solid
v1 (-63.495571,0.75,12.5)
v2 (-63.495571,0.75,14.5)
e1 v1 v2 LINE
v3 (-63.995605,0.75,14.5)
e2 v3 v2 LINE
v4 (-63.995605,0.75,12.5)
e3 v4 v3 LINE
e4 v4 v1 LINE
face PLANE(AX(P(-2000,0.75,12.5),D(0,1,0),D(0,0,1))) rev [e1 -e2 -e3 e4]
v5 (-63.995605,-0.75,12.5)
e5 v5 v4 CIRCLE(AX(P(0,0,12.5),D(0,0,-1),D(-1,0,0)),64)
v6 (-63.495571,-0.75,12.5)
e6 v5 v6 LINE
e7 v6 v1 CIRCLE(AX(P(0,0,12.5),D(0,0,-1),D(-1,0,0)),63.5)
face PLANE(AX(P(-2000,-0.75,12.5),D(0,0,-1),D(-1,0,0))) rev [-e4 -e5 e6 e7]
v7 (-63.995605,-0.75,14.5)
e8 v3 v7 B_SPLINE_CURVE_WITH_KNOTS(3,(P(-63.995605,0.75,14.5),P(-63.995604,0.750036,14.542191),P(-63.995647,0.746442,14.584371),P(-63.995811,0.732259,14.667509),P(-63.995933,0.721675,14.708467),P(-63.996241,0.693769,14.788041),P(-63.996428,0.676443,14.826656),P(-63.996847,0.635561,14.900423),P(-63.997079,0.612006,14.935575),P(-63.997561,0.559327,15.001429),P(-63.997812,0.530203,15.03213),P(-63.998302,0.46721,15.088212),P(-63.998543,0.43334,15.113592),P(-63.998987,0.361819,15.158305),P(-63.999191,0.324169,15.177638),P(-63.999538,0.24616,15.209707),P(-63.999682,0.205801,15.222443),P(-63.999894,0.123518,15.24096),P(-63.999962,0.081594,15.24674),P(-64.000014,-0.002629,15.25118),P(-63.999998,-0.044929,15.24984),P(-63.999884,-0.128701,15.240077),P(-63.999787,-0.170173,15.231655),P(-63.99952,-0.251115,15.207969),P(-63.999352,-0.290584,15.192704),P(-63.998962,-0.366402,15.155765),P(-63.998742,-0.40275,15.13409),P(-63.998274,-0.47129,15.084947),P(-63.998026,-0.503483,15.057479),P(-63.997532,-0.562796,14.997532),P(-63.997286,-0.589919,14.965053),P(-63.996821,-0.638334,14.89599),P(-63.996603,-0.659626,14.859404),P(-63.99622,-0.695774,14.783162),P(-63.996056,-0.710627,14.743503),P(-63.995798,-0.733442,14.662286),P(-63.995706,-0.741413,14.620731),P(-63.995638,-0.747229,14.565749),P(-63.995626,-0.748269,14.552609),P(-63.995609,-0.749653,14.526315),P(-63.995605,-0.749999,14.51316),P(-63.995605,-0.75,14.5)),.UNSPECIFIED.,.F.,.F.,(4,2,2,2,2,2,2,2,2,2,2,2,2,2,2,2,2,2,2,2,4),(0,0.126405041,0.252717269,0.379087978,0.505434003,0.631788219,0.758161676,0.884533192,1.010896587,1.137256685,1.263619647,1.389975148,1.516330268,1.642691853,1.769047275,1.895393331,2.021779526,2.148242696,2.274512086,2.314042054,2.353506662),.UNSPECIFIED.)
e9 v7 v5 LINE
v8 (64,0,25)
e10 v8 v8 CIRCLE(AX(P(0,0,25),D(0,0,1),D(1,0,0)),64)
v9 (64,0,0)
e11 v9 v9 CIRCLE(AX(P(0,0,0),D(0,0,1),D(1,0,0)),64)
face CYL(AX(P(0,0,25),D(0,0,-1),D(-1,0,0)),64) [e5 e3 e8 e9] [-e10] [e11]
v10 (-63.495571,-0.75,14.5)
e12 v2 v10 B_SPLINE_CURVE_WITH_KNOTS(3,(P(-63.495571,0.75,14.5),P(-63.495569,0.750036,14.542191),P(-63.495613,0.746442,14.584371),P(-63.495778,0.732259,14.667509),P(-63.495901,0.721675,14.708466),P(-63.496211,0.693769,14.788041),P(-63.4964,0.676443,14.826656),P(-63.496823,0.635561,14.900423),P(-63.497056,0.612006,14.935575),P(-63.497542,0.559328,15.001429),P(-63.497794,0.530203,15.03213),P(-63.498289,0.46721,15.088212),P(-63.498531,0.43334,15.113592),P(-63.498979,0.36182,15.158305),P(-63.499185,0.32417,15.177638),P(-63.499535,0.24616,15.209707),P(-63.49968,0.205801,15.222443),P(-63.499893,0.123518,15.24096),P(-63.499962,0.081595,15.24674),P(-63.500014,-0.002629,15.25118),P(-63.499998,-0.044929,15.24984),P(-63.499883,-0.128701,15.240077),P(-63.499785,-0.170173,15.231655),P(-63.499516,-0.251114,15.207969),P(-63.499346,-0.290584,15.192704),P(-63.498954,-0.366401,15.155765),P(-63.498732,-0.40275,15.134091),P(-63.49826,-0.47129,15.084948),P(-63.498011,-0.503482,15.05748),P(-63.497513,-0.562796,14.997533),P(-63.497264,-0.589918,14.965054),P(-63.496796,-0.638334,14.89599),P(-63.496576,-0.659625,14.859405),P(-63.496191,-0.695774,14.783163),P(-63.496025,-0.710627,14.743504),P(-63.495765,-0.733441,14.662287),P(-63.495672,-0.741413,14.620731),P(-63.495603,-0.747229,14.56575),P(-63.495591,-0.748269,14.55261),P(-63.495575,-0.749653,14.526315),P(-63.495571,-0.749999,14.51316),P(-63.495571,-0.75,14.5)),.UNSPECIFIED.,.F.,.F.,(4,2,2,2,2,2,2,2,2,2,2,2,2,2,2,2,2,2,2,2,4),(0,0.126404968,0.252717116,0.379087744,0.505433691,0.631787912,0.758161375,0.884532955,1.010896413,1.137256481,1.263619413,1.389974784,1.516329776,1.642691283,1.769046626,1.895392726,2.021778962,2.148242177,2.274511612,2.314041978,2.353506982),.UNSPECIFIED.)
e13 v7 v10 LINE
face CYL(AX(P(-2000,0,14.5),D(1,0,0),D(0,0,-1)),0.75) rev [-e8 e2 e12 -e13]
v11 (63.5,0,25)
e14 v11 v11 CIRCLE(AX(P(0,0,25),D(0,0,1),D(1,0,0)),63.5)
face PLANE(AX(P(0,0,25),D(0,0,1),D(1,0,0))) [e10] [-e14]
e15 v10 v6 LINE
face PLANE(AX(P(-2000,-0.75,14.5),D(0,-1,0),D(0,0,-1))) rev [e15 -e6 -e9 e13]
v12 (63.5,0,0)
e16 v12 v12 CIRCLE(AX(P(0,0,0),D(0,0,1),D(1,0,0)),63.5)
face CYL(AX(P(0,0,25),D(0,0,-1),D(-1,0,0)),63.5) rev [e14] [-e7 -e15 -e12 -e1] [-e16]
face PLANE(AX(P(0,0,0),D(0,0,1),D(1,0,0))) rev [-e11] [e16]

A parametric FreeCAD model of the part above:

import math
import FreeCAD as App
import Part
import Sketcher
from FreeCAD import Vector
Q = App.Units.Quantity

doc = App.newDocument("Part")
body = doc.addObject("PartDesign::Body", "Body")

# Sketch on XY plane
sketch1 = body.newObject("Sketcher::SketchObject", "Sketch")
sketch1.AttachmentSupport = (doc.getObject("XY_Plane"), [""])
sketch1.MapMode = "FlatFace"
sketch1.addGeometry([
    Part.Circle(Vector(0, 0, 0), Vector(0, 0, 1), 64),
    Part.Circle(Vector(0, 0, 0), Vector(0, 0, 1), 64),
], False)
sketch1.addConstraint([
    Sketcher.Constraint("Coincident", 0, 3, -1, 1),
    Sketcher.Constraint("Coincident", 1, 3, -1, 1),
    Sketcher.Constraint("Diameter", 0, Q("128 mm")),
    Sketcher.Constraint("Diameter", 1, Q("127 mm")),
])
pad1 = body.newObject("PartDesign::Pad", "Pad")
pad1.Profile = sketch1
pad1.Length = 25

# Sketch on YZ plane
sketch2 = body.newObject("Sketcher::SketchObject", "Sketch001")
sketch2.AttachmentSupport = (doc.getObject("YZ_Plane"), [""])
sketch2.MapMode = "FlatFace"
sketch2.addGeometry([
    Part.LineSegment(Vector(-0.8, 14.5, 0), Vector(-0.8, 12.5, 0)),
    Part.LineSegment(Vector(-0.8, 12.5, 0), Vector(0.8, 12.5, 0)),
    Part.LineSegment(Vector(0.8, 12.5, 0), Vector(0.8, 14.5, 0)),
    Part.ArcOfCircle(Part.Circle(Vector(0, 14.5, 0), Vector(0, 0, 1), 0.8), math.radians(0), math.radians(180)),
], False)
sketch2.addConstraint([
    Sketcher.Constraint("Coincident", 0, 2, 1, 1),
    Sketcher.Constraint("Coincident", 1, 2, 2, 1),
    Sketcher.Constraint("Tangent", 2, 2, 3, 1),
    Sketcher.Constraint("Tangent", 3, 2, 0, 1),
    Sketcher.Constraint("Vertical", 0),
    Sketcher.Constraint("Horizontal", 1),
    Sketcher.Constraint("Vertical", 2),
    Sketcher.Constraint("PointOnObject", 3, 3, -2),
    Sketcher.Constraint("DistanceY", 0, 2, 0, 1, Q("2 mm")),
    Sketcher.Constraint("Radius", 3, Q("0.75 mm")),
    Sketcher.Constraint("DistanceY", -1, 1, 3, 3, Q("14.5 mm")),
])
pocket1 = body.newObject("PartDesign::Pocket", "Pocket")
pocket1.Profile = sketch2
pocket1.Length = 2000

doc.recompute()
